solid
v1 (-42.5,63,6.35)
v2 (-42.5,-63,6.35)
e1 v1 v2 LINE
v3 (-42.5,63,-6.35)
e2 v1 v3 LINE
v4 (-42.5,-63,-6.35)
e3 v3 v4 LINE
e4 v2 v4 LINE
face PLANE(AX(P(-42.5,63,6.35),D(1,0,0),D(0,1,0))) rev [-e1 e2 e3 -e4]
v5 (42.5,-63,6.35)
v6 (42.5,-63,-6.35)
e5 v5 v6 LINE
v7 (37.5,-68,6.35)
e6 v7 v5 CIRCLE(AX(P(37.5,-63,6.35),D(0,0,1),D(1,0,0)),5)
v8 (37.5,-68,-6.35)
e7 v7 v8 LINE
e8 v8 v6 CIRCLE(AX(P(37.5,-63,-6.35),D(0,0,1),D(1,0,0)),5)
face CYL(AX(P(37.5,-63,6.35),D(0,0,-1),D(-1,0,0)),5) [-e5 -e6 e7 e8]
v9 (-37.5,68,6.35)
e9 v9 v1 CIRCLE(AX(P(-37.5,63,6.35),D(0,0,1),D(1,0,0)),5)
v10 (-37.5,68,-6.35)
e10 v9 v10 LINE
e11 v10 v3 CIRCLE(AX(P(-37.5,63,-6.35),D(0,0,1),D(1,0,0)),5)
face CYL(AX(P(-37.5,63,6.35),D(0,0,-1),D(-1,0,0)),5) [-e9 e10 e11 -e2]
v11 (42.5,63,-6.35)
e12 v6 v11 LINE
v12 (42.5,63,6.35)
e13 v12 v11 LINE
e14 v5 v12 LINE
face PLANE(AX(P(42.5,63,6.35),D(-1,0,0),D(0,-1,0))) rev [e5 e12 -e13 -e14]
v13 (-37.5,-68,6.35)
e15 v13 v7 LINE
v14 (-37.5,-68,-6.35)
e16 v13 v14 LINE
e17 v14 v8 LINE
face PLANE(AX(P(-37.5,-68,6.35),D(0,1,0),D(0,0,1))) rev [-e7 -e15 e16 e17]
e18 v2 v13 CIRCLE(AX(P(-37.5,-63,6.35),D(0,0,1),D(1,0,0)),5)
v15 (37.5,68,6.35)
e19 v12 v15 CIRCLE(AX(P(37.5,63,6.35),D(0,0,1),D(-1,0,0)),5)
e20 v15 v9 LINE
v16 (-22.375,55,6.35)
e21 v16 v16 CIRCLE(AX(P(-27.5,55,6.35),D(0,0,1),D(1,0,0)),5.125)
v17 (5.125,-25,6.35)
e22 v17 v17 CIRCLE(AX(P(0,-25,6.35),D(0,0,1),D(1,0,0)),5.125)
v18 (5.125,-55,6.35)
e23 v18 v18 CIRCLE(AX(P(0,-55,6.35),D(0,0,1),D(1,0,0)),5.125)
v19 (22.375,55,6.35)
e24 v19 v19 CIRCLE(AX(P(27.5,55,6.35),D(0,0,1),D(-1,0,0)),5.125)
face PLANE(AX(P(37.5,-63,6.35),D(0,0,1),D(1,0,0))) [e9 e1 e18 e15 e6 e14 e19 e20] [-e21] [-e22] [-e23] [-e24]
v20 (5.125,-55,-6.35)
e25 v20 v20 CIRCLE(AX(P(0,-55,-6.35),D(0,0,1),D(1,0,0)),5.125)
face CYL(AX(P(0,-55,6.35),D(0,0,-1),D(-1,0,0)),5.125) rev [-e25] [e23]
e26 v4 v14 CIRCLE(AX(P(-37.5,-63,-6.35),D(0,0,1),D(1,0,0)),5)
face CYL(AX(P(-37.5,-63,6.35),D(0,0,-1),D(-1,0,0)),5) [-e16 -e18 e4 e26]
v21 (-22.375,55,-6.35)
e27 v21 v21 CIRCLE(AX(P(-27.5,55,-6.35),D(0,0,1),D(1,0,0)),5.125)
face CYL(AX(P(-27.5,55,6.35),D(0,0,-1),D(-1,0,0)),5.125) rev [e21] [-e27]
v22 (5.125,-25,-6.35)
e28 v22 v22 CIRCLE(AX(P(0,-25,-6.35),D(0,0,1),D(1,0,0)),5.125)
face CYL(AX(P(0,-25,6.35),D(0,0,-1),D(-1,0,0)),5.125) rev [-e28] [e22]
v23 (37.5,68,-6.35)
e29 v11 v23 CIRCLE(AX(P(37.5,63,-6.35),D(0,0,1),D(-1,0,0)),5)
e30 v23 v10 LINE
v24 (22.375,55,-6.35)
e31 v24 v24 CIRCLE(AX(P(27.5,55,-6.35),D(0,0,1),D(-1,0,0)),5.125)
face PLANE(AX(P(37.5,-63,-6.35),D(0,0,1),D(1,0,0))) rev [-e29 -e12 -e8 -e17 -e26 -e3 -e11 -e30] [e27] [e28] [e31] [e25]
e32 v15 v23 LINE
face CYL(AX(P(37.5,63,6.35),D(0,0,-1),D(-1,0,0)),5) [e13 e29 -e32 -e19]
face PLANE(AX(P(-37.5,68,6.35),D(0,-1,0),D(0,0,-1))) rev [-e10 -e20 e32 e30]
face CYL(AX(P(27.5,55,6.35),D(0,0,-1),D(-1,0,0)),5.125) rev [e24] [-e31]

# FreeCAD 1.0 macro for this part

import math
import FreeCAD as App
import Part
import Sketcher
Q = App.Units.Quantity

doc = App.newDocument("Part")
body = doc.addObject("PartDesign::Body", "Body")

# Sketch on XY plane
sketch1 = body.newObject("Sketcher::SketchObject", "Sketch")
sketch1.AttachmentSupport = (doc.getObject("XY_Plane"), [""])
sketch1.MapMode = "FlatFace"
sketch1.addGeometry([
    Part.LineSegment(App.Vector(38, 68, 0), App.Vector(-38, 68, 0)),  # 0
    Part.ArcOfCircle(Part.Circle(App.Vector(-38, 63, 0), App.Vector(0, 0, 1), 5), math.radians(90), math.radians(180)),  # 1
    Part.LineSegment(App.Vector(-42, 63, 0), App.Vector(-42, -63, 0)),  # 2
    Part.ArcOfCircle(Part.Circle(App.Vector(-38, -63, 0), App.Vector(0, 0, 1), 5), math.radians(180), math.radians(270)),  # 3
    Part.LineSegment(App.Vector(-38, -68, 0), App.Vector(38, -68, 0)),  # 4
    Part.ArcOfCircle(Part.Circle(App.Vector(38, -63, 0), App.Vector(0, 0, 1), 5), math.radians(-90), math.radians(0)),  # 5
    Part.LineSegment(App.Vector(42, -63, 0), App.Vector(42, 63, 0)),  # 6
    Part.ArcOfCircle(Part.Circle(App.Vector(38, 63, 0), App.Vector(0, 0, 1), 5), math.radians(0), math.radians(90)),  # 7
    Part.Circle(App.Vector(0, -55, 0), App.Vector(0, 0, 1), 5),  # 8
    Part.Circle(App.Vector(0, -25, 0), App.Vector(0, 0, 1), 5),  # 9
    Part.Circle(App.Vector(28, 55, 0), App.Vector(0, 0, 1), 5),  # 10
    Part.Circle(App.Vector(-28, 55, 0), App.Vector(0, 0, 1), 5),  # 11
], False)
sketch1.addConstraint([
    Sketcher.Constraint("Tangent", 0, 2, 1, 1),
    Sketcher.Constraint("Tangent", 1, 2, 2, 1),
    Sketcher.Constraint("Tangent", 2, 2, 3, 1),
    Sketcher.Constraint("Tangent", 3, 2, 4, 1),
    Sketcher.Constraint("Tangent", 4, 2, 5, 1),
    Sketcher.Constraint("Tangent", 5, 2, 6, 1),
    Sketcher.Constraint("Tangent", 6, 2, 7, 1),
    Sketcher.Constraint("Tangent", 7, 2, 0, 1),
    Sketcher.Constraint("Horizontal", 0),
    Sketcher.Constraint("Vertical", 2),
    Sketcher.Constraint("Horizontal", 4),
    Sketcher.Constraint("Vertical", 6),
    Sketcher.Constraint("Equal", 1, 3),
    Sketcher.Constraint("Equal", 3, 5),
    Sketcher.Constraint("Equal", 5, 7),
    Sketcher.Constraint("Equal", 8, 9),
    Sketcher.Constraint("Equal", 9, 10),
    Sketcher.Constraint("Equal", 10, 11),
    Sketcher.Constraint("Symmetric", 1, 3, 5, 3, -1, 1),
    Sketcher.Constraint("Symmetric", 10, 3, 11, 3, -2),
    Sketcher.Constraint("PointOnObject", 8, 3, -2),
    Sketcher.Constraint("PointOnObject", 9, 3, -2),
    Sketcher.Constraint("Radius", 1, Q("5 mm")),
    Sketcher.Constraint("Diameter", 8, Q("10.25 mm")),
    Sketcher.Constraint("DistanceX", 0, 2, 0, 1, Q("75 mm")),
    Sketcher.Constraint("DistanceY", 2, 2, 2, 1, Q("126 mm")),
    Sketcher.Constraint("DistanceY", 8, 3, -1, 1, Q("55 mm")),
    Sketcher.Constraint("DistanceY", 9, 3, -1, 1, Q("25 mm")),
    Sketcher.Constraint("DistanceY", -1, 1, 10, 3, Q("55 mm")),
    Sketcher.Constraint("DistanceX", 10, 3, 7, 3, Q("10 mm")),
])
pad1 = body.newObject("PartDesign::Pad", "Pad")
pad1.Profile = sketch1
pad1.Length = 12.7
pad1.Midplane = True

doc.recompute()
